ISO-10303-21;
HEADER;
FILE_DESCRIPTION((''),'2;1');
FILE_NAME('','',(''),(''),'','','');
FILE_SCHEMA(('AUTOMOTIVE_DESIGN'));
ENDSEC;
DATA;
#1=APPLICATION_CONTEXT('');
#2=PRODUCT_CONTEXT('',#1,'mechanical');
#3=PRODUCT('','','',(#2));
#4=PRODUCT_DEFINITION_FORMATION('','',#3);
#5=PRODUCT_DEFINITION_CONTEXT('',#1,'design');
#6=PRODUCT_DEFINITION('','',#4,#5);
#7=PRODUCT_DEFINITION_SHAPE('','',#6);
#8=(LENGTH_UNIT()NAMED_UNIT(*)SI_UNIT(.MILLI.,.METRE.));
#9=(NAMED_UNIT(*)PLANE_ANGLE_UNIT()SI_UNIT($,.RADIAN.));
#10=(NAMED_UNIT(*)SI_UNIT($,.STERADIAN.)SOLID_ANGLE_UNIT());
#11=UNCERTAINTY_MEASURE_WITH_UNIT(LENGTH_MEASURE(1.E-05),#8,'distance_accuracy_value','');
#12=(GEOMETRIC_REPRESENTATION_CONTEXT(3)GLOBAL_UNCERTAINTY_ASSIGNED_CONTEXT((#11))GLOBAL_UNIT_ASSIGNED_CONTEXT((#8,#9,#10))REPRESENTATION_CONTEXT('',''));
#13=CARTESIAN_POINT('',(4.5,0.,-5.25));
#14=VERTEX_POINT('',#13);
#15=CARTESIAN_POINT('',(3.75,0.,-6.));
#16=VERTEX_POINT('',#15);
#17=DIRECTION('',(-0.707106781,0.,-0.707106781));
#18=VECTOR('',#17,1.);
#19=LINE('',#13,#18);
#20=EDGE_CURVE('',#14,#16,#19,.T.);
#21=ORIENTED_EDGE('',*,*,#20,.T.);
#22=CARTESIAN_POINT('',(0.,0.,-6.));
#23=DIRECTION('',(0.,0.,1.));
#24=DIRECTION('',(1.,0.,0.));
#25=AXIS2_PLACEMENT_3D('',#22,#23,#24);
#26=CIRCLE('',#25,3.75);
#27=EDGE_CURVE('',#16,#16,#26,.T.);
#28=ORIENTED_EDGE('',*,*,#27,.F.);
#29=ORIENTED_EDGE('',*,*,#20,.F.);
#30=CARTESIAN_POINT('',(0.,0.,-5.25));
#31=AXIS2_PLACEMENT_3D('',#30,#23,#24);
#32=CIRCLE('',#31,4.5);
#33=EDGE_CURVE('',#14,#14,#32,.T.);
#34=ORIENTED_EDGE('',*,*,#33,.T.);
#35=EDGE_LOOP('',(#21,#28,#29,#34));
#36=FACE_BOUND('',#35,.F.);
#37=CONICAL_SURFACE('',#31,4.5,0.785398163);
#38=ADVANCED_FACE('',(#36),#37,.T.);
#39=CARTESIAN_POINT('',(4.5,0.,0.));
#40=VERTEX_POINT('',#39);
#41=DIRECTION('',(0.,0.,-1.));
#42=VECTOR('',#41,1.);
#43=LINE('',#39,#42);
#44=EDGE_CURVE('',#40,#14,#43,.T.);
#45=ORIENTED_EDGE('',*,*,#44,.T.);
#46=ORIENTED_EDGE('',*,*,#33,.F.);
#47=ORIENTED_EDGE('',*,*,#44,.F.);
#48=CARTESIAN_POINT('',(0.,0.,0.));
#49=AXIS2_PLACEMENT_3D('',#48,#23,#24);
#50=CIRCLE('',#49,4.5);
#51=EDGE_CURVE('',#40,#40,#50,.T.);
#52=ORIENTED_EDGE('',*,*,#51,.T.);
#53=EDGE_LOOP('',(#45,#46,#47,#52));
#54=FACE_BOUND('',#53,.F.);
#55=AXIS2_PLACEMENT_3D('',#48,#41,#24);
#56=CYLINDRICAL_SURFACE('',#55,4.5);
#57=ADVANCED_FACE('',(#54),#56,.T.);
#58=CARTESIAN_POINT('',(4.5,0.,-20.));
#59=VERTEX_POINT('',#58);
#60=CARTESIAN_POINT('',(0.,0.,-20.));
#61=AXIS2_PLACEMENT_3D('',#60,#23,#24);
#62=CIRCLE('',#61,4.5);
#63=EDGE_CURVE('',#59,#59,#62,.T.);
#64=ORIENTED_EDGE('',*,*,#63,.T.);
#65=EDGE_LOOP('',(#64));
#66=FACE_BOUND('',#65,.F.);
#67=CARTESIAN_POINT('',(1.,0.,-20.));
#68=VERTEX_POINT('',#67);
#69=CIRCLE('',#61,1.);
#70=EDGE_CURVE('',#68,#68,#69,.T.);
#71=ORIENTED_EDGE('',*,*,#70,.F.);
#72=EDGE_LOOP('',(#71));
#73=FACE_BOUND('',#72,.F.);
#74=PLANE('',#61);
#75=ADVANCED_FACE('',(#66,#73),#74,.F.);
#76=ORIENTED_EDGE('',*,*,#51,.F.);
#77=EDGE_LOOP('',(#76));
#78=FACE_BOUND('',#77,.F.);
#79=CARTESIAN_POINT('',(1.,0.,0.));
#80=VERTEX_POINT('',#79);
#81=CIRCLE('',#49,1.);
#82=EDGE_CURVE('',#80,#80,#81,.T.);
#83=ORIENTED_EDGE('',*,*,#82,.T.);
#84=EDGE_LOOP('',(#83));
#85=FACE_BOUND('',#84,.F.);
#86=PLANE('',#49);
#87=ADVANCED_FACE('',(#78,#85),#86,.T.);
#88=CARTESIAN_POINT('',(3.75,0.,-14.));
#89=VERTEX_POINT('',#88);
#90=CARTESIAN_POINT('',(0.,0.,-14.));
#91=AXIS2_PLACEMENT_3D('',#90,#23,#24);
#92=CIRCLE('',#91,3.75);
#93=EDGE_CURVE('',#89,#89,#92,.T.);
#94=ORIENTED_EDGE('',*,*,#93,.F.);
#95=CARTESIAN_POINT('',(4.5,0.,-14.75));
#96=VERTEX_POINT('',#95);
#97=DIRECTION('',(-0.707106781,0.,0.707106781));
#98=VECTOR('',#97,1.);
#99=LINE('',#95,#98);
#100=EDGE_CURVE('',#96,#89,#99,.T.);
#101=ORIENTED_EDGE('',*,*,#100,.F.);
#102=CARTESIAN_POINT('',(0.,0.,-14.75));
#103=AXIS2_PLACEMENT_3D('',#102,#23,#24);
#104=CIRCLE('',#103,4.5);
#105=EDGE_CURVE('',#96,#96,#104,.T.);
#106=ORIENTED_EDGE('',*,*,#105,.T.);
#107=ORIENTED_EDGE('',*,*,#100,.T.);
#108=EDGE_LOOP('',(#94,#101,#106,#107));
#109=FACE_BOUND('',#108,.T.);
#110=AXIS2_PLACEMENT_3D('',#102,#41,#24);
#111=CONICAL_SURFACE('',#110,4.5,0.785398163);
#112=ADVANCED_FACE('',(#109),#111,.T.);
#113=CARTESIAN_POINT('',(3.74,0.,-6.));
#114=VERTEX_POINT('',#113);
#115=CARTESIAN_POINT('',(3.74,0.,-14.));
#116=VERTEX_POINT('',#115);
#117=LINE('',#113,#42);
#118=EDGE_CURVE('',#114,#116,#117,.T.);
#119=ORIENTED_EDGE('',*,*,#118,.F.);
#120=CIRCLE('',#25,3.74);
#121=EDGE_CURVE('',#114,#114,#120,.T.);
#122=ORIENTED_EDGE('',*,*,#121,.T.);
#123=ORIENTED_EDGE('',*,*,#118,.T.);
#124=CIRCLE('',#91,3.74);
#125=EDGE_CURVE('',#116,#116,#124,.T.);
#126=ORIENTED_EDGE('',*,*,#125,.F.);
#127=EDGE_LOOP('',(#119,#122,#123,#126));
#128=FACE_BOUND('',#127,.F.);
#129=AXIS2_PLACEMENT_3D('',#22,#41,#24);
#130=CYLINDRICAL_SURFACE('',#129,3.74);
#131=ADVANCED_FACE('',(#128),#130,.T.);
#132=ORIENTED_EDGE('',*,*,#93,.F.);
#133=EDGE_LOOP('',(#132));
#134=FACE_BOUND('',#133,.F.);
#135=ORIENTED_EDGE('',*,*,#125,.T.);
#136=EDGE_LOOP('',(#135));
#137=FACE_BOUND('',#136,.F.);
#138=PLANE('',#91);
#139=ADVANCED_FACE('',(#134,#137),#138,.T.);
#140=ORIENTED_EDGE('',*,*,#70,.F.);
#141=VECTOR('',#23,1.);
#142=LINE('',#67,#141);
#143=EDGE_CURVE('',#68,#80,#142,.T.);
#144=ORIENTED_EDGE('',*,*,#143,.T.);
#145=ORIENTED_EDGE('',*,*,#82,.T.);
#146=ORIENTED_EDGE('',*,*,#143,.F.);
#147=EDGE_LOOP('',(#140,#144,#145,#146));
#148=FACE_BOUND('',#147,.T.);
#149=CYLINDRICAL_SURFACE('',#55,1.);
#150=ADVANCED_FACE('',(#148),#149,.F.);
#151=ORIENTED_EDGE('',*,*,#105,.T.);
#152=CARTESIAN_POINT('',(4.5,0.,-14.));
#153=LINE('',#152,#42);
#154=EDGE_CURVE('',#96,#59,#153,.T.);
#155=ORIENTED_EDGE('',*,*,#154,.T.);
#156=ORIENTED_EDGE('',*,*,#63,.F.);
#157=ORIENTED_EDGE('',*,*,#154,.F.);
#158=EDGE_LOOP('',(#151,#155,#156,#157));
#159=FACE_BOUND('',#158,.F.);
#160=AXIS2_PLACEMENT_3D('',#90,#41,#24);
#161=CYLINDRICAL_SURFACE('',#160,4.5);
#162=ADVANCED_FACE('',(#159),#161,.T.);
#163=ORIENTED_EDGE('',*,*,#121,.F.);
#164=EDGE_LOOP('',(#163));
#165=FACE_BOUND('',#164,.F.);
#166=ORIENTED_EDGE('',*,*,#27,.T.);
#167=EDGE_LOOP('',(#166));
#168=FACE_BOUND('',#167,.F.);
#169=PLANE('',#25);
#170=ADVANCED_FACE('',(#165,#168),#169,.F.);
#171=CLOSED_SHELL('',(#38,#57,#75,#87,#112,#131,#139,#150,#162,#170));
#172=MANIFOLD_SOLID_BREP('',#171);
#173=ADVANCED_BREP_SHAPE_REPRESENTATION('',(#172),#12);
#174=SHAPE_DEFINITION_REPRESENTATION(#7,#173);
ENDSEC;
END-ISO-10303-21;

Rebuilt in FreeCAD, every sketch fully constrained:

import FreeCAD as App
import Part
import Sketcher
from FreeCAD import Vector


def edges_at(feature, points):
    """Names of the edges that pass closest to the given points."""
    edges = feature.Shape.Edges
    near = lambda p: min(range(len(edges)), key=lambda i: edges[i].distToShape(Part.Vertex(*p))[0])
    return sorted({f"Edge{near(p) + 1}" for p in points})


def add_polygon(sketch, points):
    """Adds a closed chain of lines whose ends are joined by coincident constraints."""
    first, n = sketch.GeometryCount, len(points)
    for a, b in zip(points, points[1:] + points[:1]):
        sketch.addGeometry(Part.LineSegment(App.Vector(*a, 0), App.Vector(*b, 0)), False)
    for i in range(n):
        sketch.addConstraint(Sketcher.Constraint("Coincident", first + i, 2, first + (i + 1) % n, 1))

doc = App.newDocument("Part")
body = doc.addObject("PartDesign::Body", "Body")

# Sketch on XZ plane
sketch1 = body.newObject("Sketcher::SketchObject", "Sketch")
sketch1.AttachmentSupport = (doc.getObject("XZ_Plane"), [""])
sketch1.MapMode = "FlatFace"
add_polygon(sketch1, [(0, 0), (4.5, 0), (4.5, -6), (3.7, -6), (3.7, -14), (4.5, -14), (4.5, -20), (0, -20)])  # lines 0-7
sketch1.addConstraint([
    Sketcher.Constraint("Horizontal", 0),
    Sketcher.Constraint("Vertical", 1),
    Sketcher.Constraint("Horizontal", 2),
    Sketcher.Constraint("Vertical", 3),
    Sketcher.Constraint("Horizontal", 4),
    Sketcher.Constraint("Vertical", 5),
    Sketcher.Constraint("Horizontal", 6),
    Sketcher.Constraint("Vertical", 7),
    Sketcher.Constraint("Coincident", 7, 2, -1, 1),
    Sketcher.Constraint("Vertical", 1, 2, 4, 2),
    Sketcher.Constraint("Equal", 1, 5),
    Sketcher.Constraint("DistanceY", 1, 2, 1, 1, 6.0),
    Sketcher.Constraint("DistanceY", 7, 1, 7, 2, 20.0),
    Sketcher.Constraint("DistanceX", 0, 1, 0, 2, 4.5),
    Sketcher.Constraint("DistanceX", 2, 2, 2, 1, 0.76),
])
revolution = body.newObject("PartDesign::Revolution", "Revolution")
revolution.Profile = sketch1
revolution.ReferenceAxis = (sketch1, ["V_Axis"])
revolution.Angle = 360

# Sketch on XZ plane
sketch2 = body.newObject("Sketcher::SketchObject", "Sketch001")
sketch2.AttachmentSupport = (doc.getObject("XZ_Plane"), [""])
sketch2.MapMode = "FlatFace"
add_polygon(sketch2, [(0, 0), (1, 0), (1, -20), (0, -20)])  # lines 0-3
sketch2.addConstraint([
    Sketcher.Constraint("Horizontal", 0),
    Sketcher.Constraint("Vertical", 1),
    Sketcher.Constraint("Horizontal", 2),
    Sketcher.Constraint("Vertical", 3),
    Sketcher.Constraint("Coincident", 3, 2, -1, 1),
    Sketcher.Constraint("DistanceX", 0, 1, 0, 2, 1.0),
    Sketcher.Constraint("DistanceY", 1, 2, 1, 1, 20.0),
])
groove = body.newObject("PartDesign::Groove", "Groove")
groove.Profile = sketch2
groove.ReferenceAxis = (sketch2, ["V_Axis"])
groove.Angle = 360
doc.recompute()

chamfer = body.newObject("PartDesign::Chamfer", "Chamfer")
chamfer.Base = (groove, edges_at(groove, [(-4.5, 0, -14), (-4.5, 0, -6)]))
chamfer.Size = 0.75

doc.recompute()
